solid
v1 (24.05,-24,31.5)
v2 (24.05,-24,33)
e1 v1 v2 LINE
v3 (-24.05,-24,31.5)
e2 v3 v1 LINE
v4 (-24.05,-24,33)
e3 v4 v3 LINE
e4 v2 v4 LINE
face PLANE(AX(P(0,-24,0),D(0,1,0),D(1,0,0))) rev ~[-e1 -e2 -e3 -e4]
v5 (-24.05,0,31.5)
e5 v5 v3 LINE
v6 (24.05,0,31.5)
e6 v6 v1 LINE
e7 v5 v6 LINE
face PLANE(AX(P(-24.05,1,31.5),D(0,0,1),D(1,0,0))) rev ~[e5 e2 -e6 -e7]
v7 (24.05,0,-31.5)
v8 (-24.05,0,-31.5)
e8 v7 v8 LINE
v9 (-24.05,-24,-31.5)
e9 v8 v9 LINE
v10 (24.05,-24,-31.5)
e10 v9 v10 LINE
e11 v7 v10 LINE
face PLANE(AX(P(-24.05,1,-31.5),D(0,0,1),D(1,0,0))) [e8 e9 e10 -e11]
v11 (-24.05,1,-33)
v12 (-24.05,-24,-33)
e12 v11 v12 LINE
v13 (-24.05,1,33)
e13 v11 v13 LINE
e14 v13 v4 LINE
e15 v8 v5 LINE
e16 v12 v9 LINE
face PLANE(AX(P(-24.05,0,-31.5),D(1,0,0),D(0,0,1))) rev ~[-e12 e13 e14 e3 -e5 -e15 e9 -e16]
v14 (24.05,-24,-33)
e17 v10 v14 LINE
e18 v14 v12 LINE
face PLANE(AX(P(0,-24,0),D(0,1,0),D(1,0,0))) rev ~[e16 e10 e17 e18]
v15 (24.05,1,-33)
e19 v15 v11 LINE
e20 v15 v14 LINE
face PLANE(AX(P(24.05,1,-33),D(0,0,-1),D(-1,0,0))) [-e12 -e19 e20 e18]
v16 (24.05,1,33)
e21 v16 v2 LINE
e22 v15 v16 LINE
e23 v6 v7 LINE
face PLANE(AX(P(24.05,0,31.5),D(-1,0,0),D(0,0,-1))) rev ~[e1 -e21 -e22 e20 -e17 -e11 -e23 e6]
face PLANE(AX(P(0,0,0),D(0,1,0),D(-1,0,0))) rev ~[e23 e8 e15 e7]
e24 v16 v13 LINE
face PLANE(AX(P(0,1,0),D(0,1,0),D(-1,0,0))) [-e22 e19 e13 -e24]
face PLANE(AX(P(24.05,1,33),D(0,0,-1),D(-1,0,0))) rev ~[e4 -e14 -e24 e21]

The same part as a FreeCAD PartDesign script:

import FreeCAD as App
import Part
import Sketcher
from FreeCAD import Vector


def add_polygon(sketch, points):
    """Adds a closed chain of lines whose ends are joined by coincident constraints."""
    first, n = sketch.GeometryCount, len(points)
    for a, b in zip(points, points[1:] + points[:1]):
        sketch.addGeometry(Part.LineSegment(App.Vector(*a, 0), App.Vector(*b, 0)), False)
    for i in range(n):
        sketch.addConstraint(Sketcher.Constraint("Coincident", first + i, 2, first + (i + 1) % n, 1))

doc = App.newDocument("Part")
body = doc.addObject("PartDesign::Body", "Body")

# Sketch on XZ plane
sketch1 = doc.addObject("Sketcher::SketchObject", "Sketch")
body.addObject(sketch1)
sketch1.AttachmentSupport = (doc.XZ_Plane, [""])
sketch1.MapMode = "FlatFace"
add_polygon(sketch1, [(24, 32), (24, -32), (-24, -32), (-24, 32)])  # lines 0-3
sketch1.addConstraint(Sketcher.Constraint("Vertical", 0))
sketch1.addConstraint(Sketcher.Constraint("Horizontal", 1))
sketch1.addConstraint(Sketcher.Constraint("Vertical", 2))
sketch1.addConstraint(Sketcher.Constraint("Horizontal", 3))
sketch1.addConstraint(Sketcher.Constraint("Symmetric", 0, 2, 2, 2, -1, 1))
sketch1.addConstraint(Sketcher.Constraint("DistanceY", 0, 2, 0, 1, 63.0))
sketch1.addConstraint(Sketcher.Constraint("DistanceX", 1, 2, 1, 1, 48.1))
pad1 = doc.addObject("PartDesign::Pad", "Pad")
body.addObject(pad1)
pad1.Profile = sketch1
pad1.Length = 1
pad1.Reversed = True

# Sketch on XZ plane
sketch2 = doc.addObject("Sketcher::SketchObject", "Sketch001")
body.addObject(sketch2)
sketch2.AttachmentSupport = (doc.XZ_Plane, [""])
sketch2.MapMode = "FlatFace"
sketch2.AttachmentOffset = App.Placement(Vector(0, 0, -1), App.Rotation())
add_polygon(sketch2, [(24.1, 31.5), (-24.1, 31.5), (-24.1, 33), (24.1, 33)])  # lines 0-3
add_polygon(sketch2, [(-24.1, -33), (-24.1, -31.5), (24.1, -31.5), (24.1, -33)])  # lines 4-7
sketch2.addConstraint(Sketcher.Constraint("Horizontal", 0))
sketch2.addConstraint(Sketcher.Constraint("Vertical", 1))
sketch2.addConstraint(Sketcher.Constraint("Horizontal", 2))
sketch2.addConstraint(Sketcher.Constraint("Vertical", 3))
sketch2.addConstraint(Sketcher.Constraint("Vertical", 4))
sketch2.addConstraint(Sketcher.Constraint("Horizontal", 5))
sketch2.addConstraint(Sketcher.Constraint("Vertical", 6))
sketch2.addConstraint(Sketcher.Constraint("Horizontal", 7))
sketch2.addConstraint(Sketcher.Constraint("Symmetric", 3, 2, 4, 2, -1, 1))
sketch2.addConstraint(Sketcher.Constraint("Symmetric", 1, 2, 6, 2, -1, 1))
sketch2.addConstraint(Sketcher.Constraint("Vertical", 1, 2, 4, 2))
sketch2.addConstraint(Sketcher.Constraint("DistanceY", 1, 1, 1, 2, 1.5))
sketch2.addConstraint(Sketcher.Constraint("DistanceX", 0, 2, 0, 1, 48.1))
sketch2.addConstraint(Sketcher.Constraint("DistanceY", -1, 1, 1, 2, 33.0))
pad2 = doc.addObject("PartDesign::Pad", "Pad001")
body.addObject(pad2)
pad2.Profile = sketch2
pad2.Length = 25

doc.recompute()
